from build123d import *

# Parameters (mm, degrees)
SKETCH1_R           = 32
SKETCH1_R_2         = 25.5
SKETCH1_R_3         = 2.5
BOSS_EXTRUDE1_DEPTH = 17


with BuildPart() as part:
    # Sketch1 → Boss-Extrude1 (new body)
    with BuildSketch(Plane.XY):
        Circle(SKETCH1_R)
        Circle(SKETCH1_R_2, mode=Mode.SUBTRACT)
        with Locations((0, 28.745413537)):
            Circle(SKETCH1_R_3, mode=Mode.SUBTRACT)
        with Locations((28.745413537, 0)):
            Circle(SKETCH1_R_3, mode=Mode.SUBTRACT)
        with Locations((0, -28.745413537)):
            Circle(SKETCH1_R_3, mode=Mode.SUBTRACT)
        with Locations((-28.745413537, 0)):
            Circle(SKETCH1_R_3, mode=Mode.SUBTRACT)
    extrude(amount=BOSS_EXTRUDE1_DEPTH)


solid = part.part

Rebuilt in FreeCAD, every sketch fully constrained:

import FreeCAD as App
import Part
import Sketcher
from FreeCAD import Vector
Q = App.Units.Quantity

doc = App.newDocument("Part")
body = doc.addObject("PartDesign::Body", "Body")

# Sketch on XY plane
sketch1 = doc.addObject("Sketcher::SketchObject", "Sketch")
body.addObject(sketch1)
sketch1.AttachmentSupport = (doc.XY_Plane, [""])
sketch1.MapMode = "FlatFace"
sketch1.addGeometry(Part.Circle(Vector(0, 0, 0), Vector(0, 0, 1), 32), False)
sketch1.addGeometry(Part.Circle(Vector(0, -28.745414, 0), Vector(0, 0, 1), 2.5), False)
sketch1.addGeometry(Part.Circle(Vector(-28.745414, 0, 0), Vector(0, 0, 1), 2.5), False)
sketch1.addGeometry(Part.Circle(Vector(0, 0, 0), Vector(0, 0, 1), 25.5), False)
sketch1.addGeometry(Part.Circle(Vector(28.745414, 0, 0), Vector(0, 0, 1), 2.5), False)
sketch1.addGeometry(Part.Circle(Vector(0, 28.745414, 0), Vector(0, 0, 1), 2.5), False)
sketch1.addConstraint(Sketcher.Constraint("Coincident", 0, 3, -1, 1))
sketch1.addConstraint(Sketcher.Constraint("Coincident", 3, 3, -1, 1))
sketch1.addConstraint(Sketcher.Constraint("Equal", 1, 2))
sketch1.addConstraint(Sketcher.Constraint("Equal", 2, 4))
sketch1.addConstraint(Sketcher.Constraint("Equal", 4, 5))
sketch1.addConstraint(Sketcher.Constraint("Symmetric", 2, 3, 4, 3, -1, 1))
sketch1.addConstraint(Sketcher.Constraint("Symmetric", 1, 3, 5, 3, -1, 1))
sketch1.addConstraint(Sketcher.Constraint("PointOnObject", 1, 3, -2))
sketch1.addConstraint(Sketcher.Constraint("PointOnObject", 2, 3, -1))
sketch1.addConstraint(Sketcher.Constraint("Diameter", 0, Q("64 mm")))
sketch1.addConstraint(Sketcher.Constraint("Diameter", 1, Q("5 mm")))
sketch1.addConstraint(Sketcher.Constraint("Diameter", 3, Q("51 mm")))
sketch1.addConstraint(Sketcher.Constraint("DistanceY", 1, 3, -1, 1, Q("28.745414 mm")))
sketch1.addConstraint(Sketcher.Constraint("DistanceX", 2, 3, -1, 1, Q("28.745414 mm")))
pad1 = doc.addObject("PartDesign::Pad", "Pad")
body.addObject(pad1)
pad1.Profile = sketch1
pad1.Length = 17

doc.recompute()
